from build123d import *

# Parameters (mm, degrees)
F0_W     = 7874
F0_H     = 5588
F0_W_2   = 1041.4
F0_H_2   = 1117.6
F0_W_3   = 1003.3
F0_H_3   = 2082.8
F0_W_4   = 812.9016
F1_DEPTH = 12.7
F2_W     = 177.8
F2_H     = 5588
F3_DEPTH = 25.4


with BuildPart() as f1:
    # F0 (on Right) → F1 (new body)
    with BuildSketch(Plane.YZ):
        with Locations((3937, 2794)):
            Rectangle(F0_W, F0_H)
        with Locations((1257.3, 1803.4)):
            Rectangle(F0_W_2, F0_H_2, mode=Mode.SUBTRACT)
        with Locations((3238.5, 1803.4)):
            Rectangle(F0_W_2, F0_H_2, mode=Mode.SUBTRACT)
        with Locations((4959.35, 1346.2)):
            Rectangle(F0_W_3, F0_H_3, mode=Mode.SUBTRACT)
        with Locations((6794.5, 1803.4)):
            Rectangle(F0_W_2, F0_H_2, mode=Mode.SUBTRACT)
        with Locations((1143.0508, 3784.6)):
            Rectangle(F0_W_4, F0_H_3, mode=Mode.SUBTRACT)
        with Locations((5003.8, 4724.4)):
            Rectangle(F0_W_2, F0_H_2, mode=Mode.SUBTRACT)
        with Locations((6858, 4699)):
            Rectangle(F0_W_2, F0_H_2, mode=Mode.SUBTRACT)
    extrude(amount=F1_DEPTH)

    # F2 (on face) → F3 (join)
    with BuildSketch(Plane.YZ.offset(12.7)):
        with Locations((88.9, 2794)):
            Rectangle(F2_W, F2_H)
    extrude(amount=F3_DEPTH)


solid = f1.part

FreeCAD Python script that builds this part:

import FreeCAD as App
import Part
import Sketcher
Q = App.Units.Quantity

doc = App.newDocument("Part")
params = doc.addObject("Spreadsheet::Sheet", "Params")
for row, (alias, value) in enumerate([
    ("sketch1_width", "310 in"),
    ("sketch1_width2", "41 in"),
    ("sketch1_height", "220 in"),
    ("sketch1_height2", "44 in"),
    ("sketch1_height3", "82 in"),
    ("pad1_length", "0.5 in"),
    ("sketch2_width", "7 in"),
    ("sketch2_height", "220 in"),
    ("pad2_length", "1 in"),
], start=1):
    params.set(f"A{row}", alias)
    params.set(f"B{row}", "=" + value)
    params.setAlias(f"B{row}", alias)

body = doc.addObject("PartDesign::Body", "Body")

sketch1 = body.newObject("Sketcher::SketchObject", "Sketch")
sketch1.AttachmentSupport = (doc.getObject("YZ_Plane"), [""])
sketch1.MapMode = "FlatFace"
sketch1.addGeometry(Part.LineSegment(App.Vector(0, 5588, 0), App.Vector(0, 0, 0)), False)
sketch1.addGeometry(Part.LineSegment(App.Vector(0, 0, 0), App.Vector(7874, 0, 0)), False)
sketch1.addGeometry(Part.LineSegment(App.Vector(7874, 0, 0), App.Vector(7874, 5588, 0)), False)
sketch1.addGeometry(Part.LineSegment(App.Vector(7874, 5588, 0), App.Vector(0, 5588, 0)), False)
sketch1.addGeometry(Part.LineSegment(App.Vector(1778, 1245, 0), App.Vector(737, 1245, 0)), False)
sketch1.addGeometry(Part.LineSegment(App.Vector(737, 1245, 0), App.Vector(737, 2362, 0)), False)
sketch1.addGeometry(Part.LineSegment(App.Vector(737, 2362, 0), App.Vector(1778, 2362, 0)), False)
sketch1.addGeometry(Part.LineSegment(App.Vector(1778, 2362, 0), App.Vector(1778, 1245, 0)), False)
sketch1.addGeometry(Part.LineSegment(App.Vector(3759, 1245, 0), App.Vector(2718, 1245, 0)), False)
sketch1.addGeometry(Part.LineSegment(App.Vector(2718, 1245, 0), App.Vector(2718, 2362, 0)), False)
sketch1.addGeometry(Part.LineSegment(App.Vector(2718, 2362, 0), App.Vector(3759, 2362, 0)), False)
sketch1.addGeometry(Part.LineSegment(App.Vector(3759, 2362, 0), App.Vector(3759, 1245, 0)), False)
sketch1.addGeometry(Part.LineSegment(App.Vector(5461, 305, 0), App.Vector(4458, 305, 0)), False)
sketch1.addGeometry(Part.LineSegment(App.Vector(4458, 305, 0), App.Vector(4458, 2388, 0)), False)
sketch1.addGeometry(Part.LineSegment(App.Vector(4458, 2388, 0), App.Vector(5461, 2388, 0)), False)
sketch1.addGeometry(Part.LineSegment(App.Vector(5461, 2388, 0), App.Vector(5461, 305, 0)), False)
sketch1.addGeometry(Part.LineSegment(App.Vector(7315, 1245, 0), App.Vector(6274, 1245, 0)), False)
sketch1.addGeometry(Part.LineSegment(App.Vector(6274, 1245, 0), App.Vector(6274, 2362, 0)), False)
sketch1.addGeometry(Part.LineSegment(App.Vector(6274, 2362, 0), App.Vector(7315, 2362, 0)), False)
sketch1.addGeometry(Part.LineSegment(App.Vector(7315, 2362, 0), App.Vector(7315, 1245, 0)), False)
sketch1.addGeometry(Part.LineSegment(App.Vector(1550, 2743, 0), App.Vector(737, 2743, 0)), False)
sketch1.addGeometry(Part.LineSegment(App.Vector(737, 2743, 0), App.Vector(737, 4826, 0)), False)
sketch1.addGeometry(Part.LineSegment(App.Vector(737, 4826, 0), App.Vector(1550, 4826, 0)), False)
sketch1.addGeometry(Part.LineSegment(App.Vector(1550, 4826, 0), App.Vector(1550, 2743, 0)), False)
sketch1.addGeometry(Part.LineSegment(App.Vector(5524, 4166, 0), App.Vector(4483, 4166, 0)), False)
sketch1.addGeometry(Part.LineSegment(App.Vector(4483, 4166, 0), App.Vector(4483, 5283, 0)), False)
sketch1.addGeometry(Part.LineSegment(App.Vector(4483, 5283, 0), App.Vector(5524, 5283, 0)), False)
sketch1.addGeometry(Part.LineSegment(App.Vector(5524, 5283, 0), App.Vector(5524, 4166, 0)), False)
sketch1.addGeometry(Part.LineSegment(App.Vector(7379, 4140, 0), App.Vector(6337, 4140, 0)), False)
sketch1.addGeometry(Part.LineSegment(App.Vector(6337, 4140, 0), App.Vector(6337, 5258, 0)), False)
sketch1.addGeometry(Part.LineSegment(App.Vector(6337, 5258, 0), App.Vector(7379, 5258, 0)), False)
sketch1.addGeometry(Part.LineSegment(App.Vector(7379, 5258, 0), App.Vector(7379, 4140, 0)), False)
sketch1.addConstraint(Sketcher.Constraint("Coincident", 0, 2, 1, 1))
sketch1.addConstraint(Sketcher.Constraint("Coincident", 1, 2, 2, 1))
sketch1.addConstraint(Sketcher.Constraint("Coincident", 2, 2, 3, 1))
sketch1.addConstraint(Sketcher.Constraint("Coincident", 3, 2, 0, 1))
sketch1.addConstraint(Sketcher.Constraint("Coincident", 4, 2, 5, 1))
sketch1.addConstraint(Sketcher.Constraint("Coincident", 5, 2, 6, 1))
sketch1.addConstraint(Sketcher.Constraint("Coincident", 6, 2, 7, 1))
sketch1.addConstraint(Sketcher.Constraint("Coincident", 7, 2, 4, 1))
sketch1.addConstraint(Sketcher.Constraint("Coincident", 8, 2, 9, 1))
sketch1.addConstraint(Sketcher.Constraint("Coincident", 9, 2, 10, 1))
sketch1.addConstraint(Sketcher.Constraint("Coincident", 10, 2, 11, 1))
sketch1.addConstraint(Sketcher.Constraint("Coincident", 11, 2, 8, 1))
sketch1.addConstraint(Sketcher.Constraint("Coincident", 12, 2, 13, 1))
sketch1.addConstraint(Sketcher.Constraint("Coincident", 13, 2, 14, 1))
sketch1.addConstraint(Sketcher.Constraint("Coincident", 14, 2, 15, 1))
sketch1.addConstraint(Sketcher.Constraint("Coincident", 15, 2, 12, 1))
sketch1.addConstraint(Sketcher.Constraint("Coincident", 16, 2, 17, 1))
sketch1.addConstraint(Sketcher.Constraint("Coincident", 17, 2, 18, 1))
sketch1.addConstraint(Sketcher.Constraint("Coincident", 18, 2, 19, 1))
sketch1.addConstraint(Sketcher.Constraint("Coincident", 19, 2, 16, 1))
sketch1.addConstraint(Sketcher.Constraint("Coincident", 20, 2, 21, 1))
sketch1.addConstraint(Sketcher.Constraint("Coincident", 21, 2, 22, 1))
sketch1.addConstraint(Sketcher.Constraint("Coincident", 22, 2, 23, 1))
sketch1.addConstraint(Sketcher.Constraint("Coincident", 23, 2, 20, 1))
sketch1.addConstraint(Sketcher.Constraint("Coincident", 24, 2, 25, 1))
sketch1.addConstraint(Sketcher.Constraint("Coincident", 25, 2, 26, 1))
sketch1.addConstraint(Sketcher.Constraint("Coincident", 26, 2, 27, 1))
sketch1.addConstraint(Sketcher.Constraint("Coincident", 27, 2, 24, 1))
sketch1.addConstraint(Sketcher.Constraint("Coincident", 28, 2, 29, 1))
sketch1.addConstraint(Sketcher.Constraint("Coincident", 29, 2, 30, 1))
sketch1.addConstraint(Sketcher.Constraint("Coincident", 30, 2, 31, 1))
sketch1.addConstraint(Sketcher.Constraint("Coincident", 31, 2, 28, 1))
sketch1.addConstraint(Sketcher.Constraint("Vertical", 0))
sketch1.addConstraint(Sketcher.Constraint("Horizontal", 1))
sketch1.addConstraint(Sketcher.Constraint("Vertical", 2))
sketch1.addConstraint(Sketcher.Constraint("Horizontal", 3))
sketch1.addConstraint(Sketcher.Constraint("Horizontal", 4))
sketch1.addConstraint(Sketcher.Constraint("Vertical", 5))
sketch1.addConstraint(Sketcher.Constraint("Horizontal", 6))
sketch1.addConstraint(Sketcher.Constraint("Vertical", 7))
sketch1.addConstraint(Sketcher.Constraint("Horizontal", 8))
sketch1.addConstraint(Sketcher.Constraint("Vertical", 9))
sketch1.addConstraint(Sketcher.Constraint("Horizontal", 10))
sketch1.addConstraint(Sketcher.Constraint("Vertical", 11))
sketch1.addConstraint(Sketcher.Constraint("Horizontal", 12))
sketch1.addConstraint(Sketcher.Constraint("Vertical", 13))
sketch1.addConstraint(Sketcher.Constraint("Horizontal", 14))
sketch1.addConstraint(Sketcher.Constraint("Vertical", 15))
sketch1.addConstraint(Sketcher.Constraint("Horizontal", 16))
sketch1.addConstraint(Sketcher.Constraint("Vertical", 17))
sketch1.addConstraint(Sketcher.Constraint("Horizontal", 18))
sketch1.addConstraint(Sketcher.Constraint("Vertical", 19))
sketch1.addConstraint(Sketcher.Constraint("Horizontal", 20))
sketch1.addConstraint(Sketcher.Constraint("Vertical", 21))
sketch1.addConstraint(Sketcher.Constraint("Horizontal", 22))
sketch1.addConstraint(Sketcher.Constraint("Vertical", 23))
sketch1.addConstraint(Sketcher.Constraint("Horizontal", 24))
sketch1.addConstraint(Sketcher.Constraint("Vertical", 25))
sketch1.addConstraint(Sketcher.Constraint("Horizontal", 26))
sketch1.addConstraint(Sketcher.Constraint("Vertical", 27))
sketch1.addConstraint(Sketcher.Constraint("Horizontal", 28))
sketch1.addConstraint(Sketcher.Constraint("Vertical", 29))
sketch1.addConstraint(Sketcher.Constraint("Horizontal", 30))
sketch1.addConstraint(Sketcher.Constraint("Vertical", 31))
sketch1.addConstraint(Sketcher.Constraint("Coincident", 0, 2, -1, 1))
sketch1.addConstraint(Sketcher.Constraint("Horizontal", 7, 2, 8, 2))
sketch1.addConstraint(Sketcher.Constraint("Horizontal", 6, 2, 9, 2))
sketch1.addConstraint(Sketcher.Constraint("Horizontal", 11, 2, 16, 2))
sketch1.addConstraint(Sketcher.Constraint("Horizontal", 10, 2, 17, 2))
sketch1.addConstraint(Sketcher.Constraint("Vertical", 5, 2, 20, 2))
sketch1.addConstraint(Sketcher.Constraint("Equal", 6, 8))
sketch1.addConstraint(Sketcher.Constraint("Equal", 10, 16))
sketch1.addConstraint(Sketcher.Constraint("Equal", 18, 24))
sketch1.addConstraint(Sketcher.Constraint("Equal", 26, 28))
sketch1.addConstraint(Sketcher.Constraint("Equal", 15, 21))
sketch1.addConstraint(Sketcher.Constraint("Equal", 19, 25))
sketch1.addConstraint(Sketcher.Constraint("Equal", 27, 29))
sketch1.addConstraint(Sketcher.Constraint("DistanceX", 1, 1, 1, 2, Q("310 in")))
sketch1.addConstraint(Sketcher.Constraint("DistanceX", 4, 2, 4, 1, Q("41 in")))
sketch1.addConstraint(Sketcher.Constraint("DistanceY", 0, 2, 0, 1, Q("220 in")))
sketch1.addConstraint(Sketcher.Constraint("DistanceY", 5, 1, 5, 2, Q("44 in")))
sketch1.addConstraint(Sketcher.Constraint("DistanceY", 13, 1, 13, 2, Q("82 in")))
sketch1.addConstraint(Sketcher.Constraint("DistanceX", 12, 2, 12, 1, Q("39.5 in")))
sketch1.addConstraint(Sketcher.Constraint("DistanceX", -1, 1, 4, 2, Q("29 in")))
sketch1.addConstraint(Sketcher.Constraint("DistanceY", -1, 1, 4, 2, Q("49 in")))
sketch1.addConstraint(Sketcher.Constraint("DistanceX", -1, 1, 8, 2, Q("107 in")))
sketch1.addConstraint(Sketcher.Constraint("DistanceY", -1, 1, 12, 2, Q("12 in")))
sketch1.addConstraint(Sketcher.Constraint("DistanceX", -1, 1, 14, 2, Q("215 in")))
sketch1.addConstraint(Sketcher.Constraint("DistanceX", -1, 1, 16, 2, Q("247 in")))
sketch1.addConstraint(Sketcher.Constraint("DistanceY", -1, 1, 20, 2, Q("108 in")))
sketch1.addConstraint(Sketcher.Constraint("DistanceY", -1, 1, 24, 2, Q("164 in")))
sketch1.addConstraint(Sketcher.Constraint("DistanceY", -1, 1, 28, 2, Q("163 in")))
sketch1.addConstraint(Sketcher.Constraint("DistanceX", 13, 2, 24, 2, Q("1 in")))
sketch1.addConstraint(Sketcher.Constraint("DistanceX", 27, 2, 28, 2, Q("32 in")))
sketch1.addConstraint(Sketcher.Constraint("DistanceX", 20, 2, 20, 1, Q("32.004 in")))
sketch1.setExpression("Constraints[77]", "Params.sketch1_width")
sketch1.setExpression("Constraints[78]", "Params.sketch1_width2")
sketch1.setExpression("Constraints[79]", "Params.sketch1_height")
sketch1.setExpression("Constraints[80]", "Params.sketch1_height2")
sketch1.setExpression("Constraints[81]", "Params.sketch1_height3")
pad1 = body.newObject("PartDesign::Pad", "Pad")
pad1.Profile = sketch1
pad1.setExpression("Length", "Params.pad1_length")

sketch2 = body.newObject("Sketcher::SketchObject", "Sketch001")
sketch2.AttachmentSupport = (doc.getObject("YZ_Plane"), [""])
sketch2.MapMode = "FlatFace"
sketch2.AttachmentOffset = App.Placement(App.Vector(0, 0, 0.5 * 25.4), App.Rotation())
sketch2.addGeometry(Part.LineSegment(App.Vector(0, 5588, 0), App.Vector(0, 0, 0)), False)
sketch2.addGeometry(Part.LineSegment(App.Vector(0, 0, 0), App.Vector(178, 0, 0)), False)
sketch2.addGeometry(Part.LineSegment(App.Vector(178, 0, 0), App.Vector(178, 5588, 0)), False)
sketch2.addGeometry(Part.LineSegment(App.Vector(178, 5588, 0), App.Vector(0, 5588, 0)), False)
sketch2.addConstraint(Sketcher.Constraint("Coincident", 0, 2, 1, 1))
sketch2.addConstraint(Sketcher.Constraint("Coincident", 1, 2, 2, 1))
sketch2.addConstraint(Sketcher.Constraint("Coincident", 2, 2, 3, 1))
sketch2.addConstraint(Sketcher.Constraint("Coincident", 3, 2, 0, 1))
sketch2.addConstraint(Sketcher.Constraint("Vertical", 0))
sketch2.addConstraint(Sketcher.Constraint("Horizontal", 1))
sketch2.addConstraint(Sketcher.Constraint("Vertical", 2))
sketch2.addConstraint(Sketcher.Constraint("Horizontal", 3))
sketch2.addConstraint(Sketcher.Constraint("Coincident", 0, 2, -1, 1))
sketch2.addConstraint(Sketcher.Constraint("DistanceX", 1, 1, 1, 2, Q("7 in")))
sketch2.addConstraint(Sketcher.Constraint("DistanceY", 0, 2, 0, 1, Q("220 in")))
sketch2.setExpression("Constraints[9]", "Params.sketch2_width")
sketch2.setExpression("Constraints[10]", "Params.sketch2_height")
pad2 = body.newObject("PartDesign::Pad", "Pad001")
pad2.Profile = sketch2
pad2.setExpression("Length", "Params.pad2_length")

doc.recompute()
